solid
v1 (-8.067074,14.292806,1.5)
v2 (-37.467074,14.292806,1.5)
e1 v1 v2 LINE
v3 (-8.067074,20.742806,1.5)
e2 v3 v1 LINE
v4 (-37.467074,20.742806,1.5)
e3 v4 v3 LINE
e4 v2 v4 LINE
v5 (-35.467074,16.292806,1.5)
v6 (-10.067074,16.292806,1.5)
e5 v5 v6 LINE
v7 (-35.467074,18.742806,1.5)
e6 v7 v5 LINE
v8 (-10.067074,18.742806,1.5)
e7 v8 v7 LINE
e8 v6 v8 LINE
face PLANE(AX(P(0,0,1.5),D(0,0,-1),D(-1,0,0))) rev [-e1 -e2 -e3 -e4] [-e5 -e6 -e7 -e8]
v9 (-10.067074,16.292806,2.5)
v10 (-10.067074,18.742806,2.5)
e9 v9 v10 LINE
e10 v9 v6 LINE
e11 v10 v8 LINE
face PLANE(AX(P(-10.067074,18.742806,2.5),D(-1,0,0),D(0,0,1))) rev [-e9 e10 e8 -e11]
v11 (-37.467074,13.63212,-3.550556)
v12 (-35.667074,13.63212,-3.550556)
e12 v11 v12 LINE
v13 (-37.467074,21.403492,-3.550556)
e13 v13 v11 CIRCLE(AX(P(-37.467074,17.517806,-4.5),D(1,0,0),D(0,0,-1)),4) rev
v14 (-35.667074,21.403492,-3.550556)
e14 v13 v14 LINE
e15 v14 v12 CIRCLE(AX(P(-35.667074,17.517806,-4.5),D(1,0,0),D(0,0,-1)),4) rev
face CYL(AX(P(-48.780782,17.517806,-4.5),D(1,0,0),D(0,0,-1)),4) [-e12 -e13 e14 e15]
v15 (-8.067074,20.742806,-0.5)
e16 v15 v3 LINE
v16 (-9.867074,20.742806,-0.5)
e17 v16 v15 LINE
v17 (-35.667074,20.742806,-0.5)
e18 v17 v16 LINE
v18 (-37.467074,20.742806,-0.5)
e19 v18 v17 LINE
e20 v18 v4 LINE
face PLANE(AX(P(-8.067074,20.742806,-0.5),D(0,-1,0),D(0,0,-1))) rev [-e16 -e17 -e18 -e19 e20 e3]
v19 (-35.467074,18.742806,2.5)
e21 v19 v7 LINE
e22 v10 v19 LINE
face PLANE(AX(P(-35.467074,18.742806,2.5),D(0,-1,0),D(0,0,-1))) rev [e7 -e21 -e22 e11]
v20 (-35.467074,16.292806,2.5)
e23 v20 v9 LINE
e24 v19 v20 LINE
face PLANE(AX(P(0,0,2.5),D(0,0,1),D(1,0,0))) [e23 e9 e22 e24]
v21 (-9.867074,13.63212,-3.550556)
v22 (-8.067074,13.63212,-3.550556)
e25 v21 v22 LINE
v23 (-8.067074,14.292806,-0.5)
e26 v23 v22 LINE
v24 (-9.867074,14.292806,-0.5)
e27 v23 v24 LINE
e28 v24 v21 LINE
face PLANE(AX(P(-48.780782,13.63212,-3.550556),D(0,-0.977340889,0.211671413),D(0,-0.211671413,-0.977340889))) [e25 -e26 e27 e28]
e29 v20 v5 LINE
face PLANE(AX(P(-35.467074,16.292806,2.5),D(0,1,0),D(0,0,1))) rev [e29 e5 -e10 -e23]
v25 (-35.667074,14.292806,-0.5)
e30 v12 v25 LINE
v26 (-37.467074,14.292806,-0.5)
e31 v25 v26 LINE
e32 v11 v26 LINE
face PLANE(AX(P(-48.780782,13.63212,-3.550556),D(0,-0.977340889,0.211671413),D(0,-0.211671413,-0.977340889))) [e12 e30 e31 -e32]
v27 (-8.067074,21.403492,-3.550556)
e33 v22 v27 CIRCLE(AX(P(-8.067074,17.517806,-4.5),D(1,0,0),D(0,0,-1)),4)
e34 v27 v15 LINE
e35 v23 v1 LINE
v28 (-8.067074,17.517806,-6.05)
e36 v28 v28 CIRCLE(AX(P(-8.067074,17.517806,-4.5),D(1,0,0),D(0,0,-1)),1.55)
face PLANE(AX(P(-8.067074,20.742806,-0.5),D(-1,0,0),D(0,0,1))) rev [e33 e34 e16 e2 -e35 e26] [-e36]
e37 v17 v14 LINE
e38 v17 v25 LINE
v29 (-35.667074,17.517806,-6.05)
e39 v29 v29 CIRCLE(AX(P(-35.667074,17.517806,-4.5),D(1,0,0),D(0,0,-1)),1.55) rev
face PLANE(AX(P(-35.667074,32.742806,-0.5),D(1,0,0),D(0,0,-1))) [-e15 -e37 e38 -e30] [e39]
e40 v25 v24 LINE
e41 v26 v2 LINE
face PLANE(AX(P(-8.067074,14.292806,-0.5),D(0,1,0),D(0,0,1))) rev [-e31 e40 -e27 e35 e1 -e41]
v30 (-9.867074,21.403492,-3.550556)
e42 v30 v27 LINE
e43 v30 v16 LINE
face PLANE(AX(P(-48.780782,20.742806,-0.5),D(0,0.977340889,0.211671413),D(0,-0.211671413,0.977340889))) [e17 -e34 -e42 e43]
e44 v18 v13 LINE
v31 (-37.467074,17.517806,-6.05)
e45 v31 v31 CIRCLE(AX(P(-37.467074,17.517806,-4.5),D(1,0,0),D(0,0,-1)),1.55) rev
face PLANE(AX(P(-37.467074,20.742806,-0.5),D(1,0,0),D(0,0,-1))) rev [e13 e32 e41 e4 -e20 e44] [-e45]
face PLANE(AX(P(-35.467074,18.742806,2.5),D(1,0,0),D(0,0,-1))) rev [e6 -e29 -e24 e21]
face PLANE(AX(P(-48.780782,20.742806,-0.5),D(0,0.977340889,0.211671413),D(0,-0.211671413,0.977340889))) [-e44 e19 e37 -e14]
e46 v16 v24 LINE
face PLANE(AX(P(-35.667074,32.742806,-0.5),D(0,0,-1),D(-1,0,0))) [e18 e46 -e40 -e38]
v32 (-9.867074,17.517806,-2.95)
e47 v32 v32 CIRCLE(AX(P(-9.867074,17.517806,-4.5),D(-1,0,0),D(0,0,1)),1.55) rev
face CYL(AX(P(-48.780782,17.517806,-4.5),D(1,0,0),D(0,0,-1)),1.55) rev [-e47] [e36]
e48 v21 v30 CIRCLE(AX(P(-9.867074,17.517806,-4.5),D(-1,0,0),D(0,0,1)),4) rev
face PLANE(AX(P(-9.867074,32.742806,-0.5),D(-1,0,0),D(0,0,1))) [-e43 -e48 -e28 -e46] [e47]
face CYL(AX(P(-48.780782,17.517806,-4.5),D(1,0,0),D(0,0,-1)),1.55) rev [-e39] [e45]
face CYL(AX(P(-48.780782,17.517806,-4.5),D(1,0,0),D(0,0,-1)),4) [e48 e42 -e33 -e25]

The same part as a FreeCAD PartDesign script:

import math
import FreeCAD as App
import Part
import Sketcher
from FreeCAD import Vector
Q = App.Units.Quantity

doc = App.newDocument("Part")
body = doc.addObject("PartDesign::Body", "Body")

# Sketch on XY plane
sketch1 = body.newObject("Sketcher::SketchObject", "Sketch")
sketch1.AttachmentSupport = (doc.getObject("XY_Plane"), [""])
sketch1.MapMode = "FlatFace"
sketch1.addGeometry(Part.LineSegment(Vector(-36, 19, 0), Vector(-36, 16, 0)), False)
sketch1.addGeometry(Part.LineSegment(Vector(-36, 16, 0), Vector(-9.6, 16, 0)), False)
sketch1.addGeometry(Part.LineSegment(Vector(-9.6, 16, 0), Vector(-9.6, 19, 0)), False)
sketch1.addGeometry(Part.LineSegment(Vector(-9.6, 19, 0), Vector(-36, 19, 0)), False)
sketch1.addConstraint(Sketcher.Constraint("Coincident", 0, 2, 1, 1))
sketch1.addConstraint(Sketcher.Constraint("Coincident", 1, 2, 2, 1))
sketch1.addConstraint(Sketcher.Constraint("Coincident", 2, 2, 3, 1))
sketch1.addConstraint(Sketcher.Constraint("Coincident", 3, 2, 0, 1))
sketch1.addConstraint(Sketcher.Constraint("Vertical", 0))
sketch1.addConstraint(Sketcher.Constraint("Horizontal", 1))
sketch1.addConstraint(Sketcher.Constraint("Vertical", 2))
sketch1.addConstraint(Sketcher.Constraint("Horizontal", 3))
sketch1.addConstraint(Sketcher.Constraint("DistanceX", 1, 1, 1, 2, Q("26.4 mm")))
sketch1.addConstraint(Sketcher.Constraint("DistanceY", 0, 2, 0, 1, Q("2.95 mm")))
sketch1.addConstraint(Sketcher.Constraint("DistanceX", 0, 2, -1, 1, Q("35.967074 mm")))
sketch1.addConstraint(Sketcher.Constraint("DistanceY", -1, 1, 0, 2, Q("16.042806 mm")))
pad1 = body.newObject("PartDesign::Pad", "Pad")
pad1.Profile = sketch1
pad1.Length = 1.5

# Sketch on YZ plane
sketch2 = body.newObject("Sketcher::SketchObject", "Sketch001")
sketch2.AttachmentSupport = (doc.getObject("YZ_Plane"), [""])
sketch2.MapMode = "FlatFace"
sketch2.AttachmentOffset = App.Placement(Vector(0, 0, -9.567074), App.Rotation())
sketch2.addGeometry(Part.ArcOfCircle(Part.Circle(Vector(17.5, -3, 0), Vector(0, 0, 1), 3), math.radians(119), math.radians(421)), False)
sketch2.addGeometry(Part.LineSegment(Vector(19, -0.4, 0), Vector(19, 0.5, 0)), False)
sketch2.addGeometry(Part.LineSegment(Vector(19, 0.5, 0), Vector(16, 0.5, 0)), False)
sketch2.addGeometry(Part.LineSegment(Vector(16, 0.5, 0), Vector(16, -0.4, 0)), False)
sketch2.addConstraint(Sketcher.Constraint("Coincident", 0, 2, 1, 1))
sketch2.addConstraint(Sketcher.Constraint("Coincident", 1, 2, 2, 1))
sketch2.addConstraint(Sketcher.Constraint("Coincident", 2, 2, 3, 1))
sketch2.addConstraint(Sketcher.Constraint("Coincident", 3, 2, 0, 1))
sketch2.addConstraint(Sketcher.Constraint("Vertical", 1))
sketch2.addConstraint(Sketcher.Constraint("Horizontal", 2))
sketch2.addConstraint(Sketcher.Constraint("Vertical", 3))
sketch2.addConstraint(Sketcher.Constraint("Horizontal", 0, 2, 3, 2))
sketch2.addConstraint(Sketcher.Constraint("Radius", 0, Q("3 mm")))
sketch2.addConstraint(Sketcher.Constraint("DistanceY", 0, 3, -1, 1, Q("3 mm")))
sketch2.addConstraint(Sketcher.Constraint("DistanceX", 2, 2, 2, 1, Q("2.95 mm")))
sketch2.addConstraint(Sketcher.Constraint("DistanceY", -1, 1, 1, 2, Q("0.5 mm")))
sketch2.addConstraint(Sketcher.Constraint("DistanceX", -1, 1, 0, 3, Q("17.517806 mm")))
pad2 = body.newObject("PartDesign::Pad", "Pad001")
pad2.Profile = sketch2
pad2.Length = 1

# Sketch on YZ plane
sketch3 = body.newObject("Sketcher::SketchObject", "Sketch002")
sketch3.AttachmentSupport = (doc.getObject("YZ_Plane"), [""])
sketch3.MapMode = "FlatFace"
sketch3.AttachmentOffset = App.Placement(Vector(0, 0, -36.967074), App.Rotation())
sketch3.addGeometry(Part.LineSegment(Vector(19, 0.5, 0), Vector(19, -0.4, 0)), False)
sketch3.addGeometry(Part.ArcOfCircle(Part.Circle(Vector(17.5, -3, 0), Vector(0, 0, 1), 3), math.radians(119), math.radians(421)), False)
sketch3.addGeometry(Part.LineSegment(Vector(16, -0.4, 0), Vector(16, 0.5, 0)), False)
sketch3.addGeometry(Part.LineSegment(Vector(16, 0.5, 0), Vector(19, 0.5, 0)), False)
sketch3.addConstraint(Sketcher.Constraint("Coincident", 0, 2, 1, 2))
sketch3.addConstraint(Sketcher.Constraint("Coincident", 1, 1, 2, 1))
sketch3.addConstraint(Sketcher.Constraint("Coincident", 2, 2, 3, 1))
sketch3.addConstraint(Sketcher.Constraint("Coincident", 3, 2, 0, 1))
sketch3.addConstraint(Sketcher.Constraint("Vertical", 0))
sketch3.addConstraint(Sketcher.Constraint("Vertical", 2))
sketch3.addConstraint(Sketcher.Constraint("Horizontal", 3))
sketch3.addConstraint(Sketcher.Constraint("Horizontal", 0, 2, 1, 1))
sketch3.addConstraint(Sketcher.Constraint("Radius", 1, Q("3 mm")))
sketch3.addConstraint(Sketcher.Constraint("DistanceY", 1, 3, -1, 1, Q("3 mm")))
sketch3.addConstraint(Sketcher.Constraint("DistanceX", 3, 1, 3, 2, Q("2.95 mm")))
sketch3.addConstraint(Sketcher.Constraint("DistanceY", -1, 1, 2, 2, Q("0.5 mm")))
sketch3.addConstraint(Sketcher.Constraint("DistanceX", -1, 1, 1, 3, Q("17.517806 mm")))
pad3 = body.newObject("PartDesign::Pad", "Pad002")
pad3.Profile = sketch3
pad3.Length = 1

# Sketch on XZ plane
sketch4 = body.newObject("Sketcher::SketchObject", "Sketch003")
sketch4.AttachmentSupport = (doc.getObject("XZ_Plane"), [""])
sketch4.MapMode = "FlatFace"
sketch4.AttachmentOffset = App.Placement(Vector(0, 0, -18.992806), App.Rotation())
sketch4.addGeometry(Part.LineSegment(Vector(-35.97, -0.39, 0), Vector(-35.97, 0, 0)), False)
sketch4.addGeometry(Part.LineSegment(Vector(-35.97, 0, 0), Vector(-9.57, 0, 0)), False)
sketch4.addGeometry(Part.LineSegment(Vector(-9.57, 0, 0), Vector(-9.57, -0.39, 0)), False)
sketch4.addGeometry(Part.LineSegment(Vector(-9.57, -0.39, 0), Vector(-35.97, -0.39, 0)), False)
sketch4.addConstraint(Sketcher.Constraint("Coincident", 0, 2, 1, 1))
sketch4.addConstraint(Sketcher.Constraint("Coincident", 1, 2, 2, 1))
sketch4.addConstraint(Sketcher.Constraint("Coincident", 2, 2, 3, 1))
sketch4.addConstraint(Sketcher.Constraint("Coincident", 3, 2, 0, 1))
sketch4.addConstraint(Sketcher.Constraint("Vertical", 0))
sketch4.addConstraint(Sketcher.Constraint("Horizontal", 1))
sketch4.addConstraint(Sketcher.Constraint("Vertical", 2))
sketch4.addConstraint(Sketcher.Constraint("Horizontal", 3))
sketch4.addConstraint(Sketcher.Constraint("PointOnObject", 0, 2, -1))
sketch4.addConstraint(Sketcher.Constraint("DistanceX", 1, 1, 1, 2, Q("26.4 mm")))
sketch4.addConstraint(Sketcher.Constraint("DistanceY", 0, 1, 0, 2, Q("0.38765 mm")))
sketch4.addConstraint(Sketcher.Constraint("DistanceX", 0, 2, -1, 1, Q("35.967074 mm")))
pad4 = body.newObject("PartDesign::Pad", "Pad003")
pad4.Profile = sketch4
pad4.Length = 2.95

# Sketch on YZ plane
sketch5 = body.newObject("Sketcher::SketchObject", "Sketch004")
sketch5.AttachmentSupport = (doc.getObject("YZ_Plane"), [""])
sketch5.MapMode = "FlatFace"
sketch5.AttachmentOffset = App.Placement(Vector(0, 0, -8.567074), App.Rotation())
sketch5.addGeometry(Part.Circle(Vector(17.5, -3, 0), Vector(0, 0, 1), 1.5), False)
sketch5.addConstraint(Sketcher.Constraint("Diameter", 0, Q("3 mm")))
sketch5.addConstraint(Sketcher.Constraint("DistanceY", 0, 3, -1, 1, Q("3 mm")))
sketch5.addConstraint(Sketcher.Constraint("DistanceX", -1, 1, 0, 3, Q("17.517806 mm")))
pocket1 = body.newObject("PartDesign::Pocket", "Pocket")
pocket1.Profile = sketch5
pocket1.Length = 51

# Sketch on YZ plane
sketch6 = body.newObject("Sketcher::SketchObject", "Sketch005")
sketch6.AttachmentSupport = (doc.getObject("YZ_Plane"), [""])
sketch6.MapMode = "FlatFace"
sketch6.AttachmentOffset = App.Placement(Vector(0, 0, -35.967074), App.Rotation())
sketch6.addGeometry(Part.Circle(Vector(17.5, -3, 0), Vector(0, 0, 1), 3), False)
sketch6.addConstraint(Sketcher.Constraint("Diameter", 0, Q("6 mm")))
sketch6.addConstraint(Sketcher.Constraint("DistanceY", 0, 3, -1, 1, Q("3 mm")))
sketch6.addConstraint(Sketcher.Constraint("DistanceX", -1, 1, 0, 3, Q("17.517806 mm")))
pocket2 = body.newObject("PartDesign::Pocket", "Pocket001")
pocket2.Profile = sketch6
pocket2.Length = 26.4
pocket2.Reversed = True

# Sketch on XZ plane
sketch7 = body.newObject("Sketcher::SketchObject", "Sketch006")
sketch7.AttachmentSupport = (doc.getObject("XZ_Plane"), [""])
sketch7.MapMode = "FlatFace"
sketch7.addGeometry(Part.LineSegment(Vector(-37.3, 0.5, 0), Vector(-37.3, 1.5, 0)), False)
sketch7.addGeometry(Part.LineSegment(Vector(-37.3, 1.5, 0), Vector(-36.8, 1.5, 0)), False)
sketch7.addGeometry(Part.LineSegment(Vector(-36.8, 1.5, 0), Vector(-36.8, 0.5, 0)), False)
sketch7.addGeometry(Part.LineSegment(Vector(-36.8, 0.5, 0), Vector(-37.3, 0.5, 0)), False)
sketch7.addGeometry(Part.LineSegment(Vector(-8.8, 0.5, 0), Vector(-8.8, 1.5, 0)), False)
sketch7.addGeometry(Part.LineSegment(Vector(-8.8, 1.5, 0), Vector(-8.3, 1.5, 0)), False)
sketch7.addGeometry(Part.LineSegment(Vector(-8.3, 1.5, 0), Vector(-8.3, 0.5, 0)), False)
sketch7.addGeometry(Part.LineSegment(Vector(-8.3, 0.5, 0), Vector(-8.8, 0.5, 0)), False)
sketch7.addConstraint(Sketcher.Constraint("Coincident", 0, 2, 1, 1))
sketch7.addConstraint(Sketcher.Constraint("Coincident", 1, 2, 2, 1))
sketch7.addConstraint(Sketcher.Constraint("Coincident", 2, 2, 3, 1))
sketch7.addConstraint(Sketcher.Constraint("Coincident", 3, 2, 0, 1))
sketch7.addConstraint(Sketcher.Constraint("Coincident", 4, 2, 5, 1))
sketch7.addConstraint(Sketcher.Constraint("Coincident", 5, 2, 6, 1))
sketch7.addConstraint(Sketcher.Constraint("Coincident", 6, 2, 7, 1))
sketch7.addConstraint(Sketcher.Constraint("Coincident", 7, 2, 4, 1))
sketch7.addConstraint(Sketcher.Constraint("Vertical", 0))
sketch7.addConstraint(Sketcher.Constraint("Horizontal", 1))
sketch7.addConstraint(Sketcher.Constraint("Vertical", 2))
sketch7.addConstraint(Sketcher.Constraint("Horizontal", 3))
sketch7.addConstraint(Sketcher.Constraint("Vertical", 4))
sketch7.addConstraint(Sketcher.Constraint("Horizontal", 5))
sketch7.addConstraint(Sketcher.Constraint("Vertical", 6))
sketch7.addConstraint(Sketcher.Constraint("Horizontal", 7))
sketch7.addConstraint(Sketcher.Constraint("Horizontal", 1, 2, 4, 2))
sketch7.addConstraint(Sketcher.Constraint("Horizontal", 3, 2, 6, 2))
sketch7.addConstraint(Sketcher.Constraint("Equal", 3, 5))
sketch7.addConstraint(Sketcher.Constraint("DistanceY", 0, 1, 0, 2, Q("1 mm")))
sketch7.addConstraint(Sketcher.Constraint("DistanceX", 1, 1, 1, 2, Q("0.5 mm")))
sketch7.addConstraint(Sketcher.Constraint("DistanceY", -1, 1, 0, 2, Q("1.5 mm")))
sketch7.addConstraint(Sketcher.Constraint("DistanceX", 4, 2, -1, 1, Q("8.768741 mm")))
sketch7.addConstraint(Sketcher.Constraint("DistanceX", 0, 2, -1, 1, Q("37.267074 mm")))
pad5 = body.newObject("PartDesign::Pad", "Pad004")
pad5.Profile = sketch7
pad5.Length = 20
pad5.Reversed = True

# Sketch on YZ plane
sketch8 = body.newObject("Sketcher::SketchObject", "Sketch007")
sketch8.AttachmentSupport = (doc.getObject("YZ_Plane"), [""])
sketch8.MapMode = "FlatFace"
sketch8.AttachmentOffset = App.Placement(Vector(0, 0, -37.267074), App.Rotation())
sketch8.addGeometry(Part.LineSegment(Vector(20, 0.5, 0), Vector(19, 0.5, 0)), False)
sketch8.addGeometry(Part.LineSegment(Vector(19, 0.5, 0), Vector(19, 1.5, 0)), False)
sketch8.addGeometry(Part.LineSegment(Vector(19, 1.5, 0), Vector(20, 1.5, 0)), False)
sketch8.addGeometry(Part.LineSegment(Vector(20, 1.5, 0), Vector(20, 0.5, 0)), False)
sketch8.addGeometry(Part.LineSegment(Vector(16, 0.5, 0), Vector(0, 0.5, 0)), False)
sketch8.addGeometry(Part.LineSegment(Vector(0, 0.5, 0), Vector(0, 1.5, 0)), False)
sketch8.addGeometry(Part.LineSegment(Vector(0, 1.5, 0), Vector(16, 1.5, 0)), False)
sketch8.addGeometry(Part.LineSegment(Vector(16, 1.5, 0), Vector(16, 0.5, 0)), False)
sketch8.addConstraint(Sketcher.Constraint("Coincident", 0, 2, 1, 1))
sketch8.addConstraint(Sketcher.Constraint("Coincident", 1, 2, 2, 1))
sketch8.addConstraint(Sketcher.Constraint("Coincident", 2, 2, 3, 1))
sketch8.addConstraint(Sketcher.Constraint("Coincident", 3, 2, 0, 1))
sketch8.addConstraint(Sketcher.Constraint("Coincident", 4, 2, 5, 1))
sketch8.addConstraint(Sketcher.Constraint("Coincident", 5, 2, 6, 1))
sketch8.addConstraint(Sketcher.Constraint("Coincident", 6, 2, 7, 1))
sketch8.addConstraint(Sketcher.Constraint("Coincident", 7, 2, 4, 1))
sketch8.addConstraint(Sketcher.Constraint("Horizontal", 0))
sketch8.addConstraint(Sketcher.Constraint("Vertical", 1))
sketch8.addConstraint(Sketcher.Constraint("Horizontal", 2))
sketch8.addConstraint(Sketcher.Constraint("Vertical", 3))
sketch8.addConstraint(Sketcher.Constraint("Horizontal", 4))
sketch8.addConstraint(Sketcher.Constraint("Vertical", 5))
sketch8.addConstraint(Sketcher.Constraint("Horizontal", 6))
sketch8.addConstraint(Sketcher.Constraint("Vertical", 7))
sketch8.addConstraint(Sketcher.Constraint("PointOnObject", 4, 2, -2))
sketch8.addConstraint(Sketcher.Constraint("Horizontal", 3, 2, 4, 2))
sketch8.addConstraint(Sketcher.Constraint("Horizontal", 2, 2, 5, 2))
sketch8.addConstraint(Sketcher.Constraint("DistanceY", 1, 1, 1, 2, Q("1 mm")))
sketch8.addConstraint(Sketcher.Constraint("DistanceX", -1, 1, 2, 2, Q("20 mm")))
sketch8.addConstraint(Sketcher.Constraint("DistanceY", -1, 1, 0, 2, Q("0.5 mm")))
sketch8.addConstraint(Sketcher.Constraint("DistanceX", 6, 2, 1, 2, Q("2.95 mm")))
sketch8.addConstraint(Sketcher.Constraint("DistanceX", 0, 2, 0, 1, Q("1.007194 mm")))
pocket3 = body.newObject("PartDesign::Pocket", "Pocket002")
pocket3.Profile = sketch8
pocket3.Length = 40
pocket3.Reversed = True

# Sketch on XY plane
sketch9 = body.newObject("Sketcher::SketchObject", "Sketch008")
sketch9.AttachmentSupport = (doc.getObject("XY_Plane"), [""])
sketch9.MapMode = "FlatFace"
sketch9.AttachmentOffset = App.Placement(Vector(0, 0, 1.5), App.Rotation())
sketch9.addGeometry(Part.LineSegment(Vector(-35.5, 18.7, 0), Vector(-35.5, 16.3, 0)), False)
sketch9.addGeometry(Part.LineSegment(Vector(-35.5, 16.3, 0), Vector(-10.1, 16.3, 0)), False)
sketch9.addGeometry(Part.LineSegment(Vector(-10.1, 16.3, 0), Vector(-10.1, 18.7, 0)), False)
sketch9.addGeometry(Part.LineSegment(Vector(-10.1, 18.7, 0), Vector(-35.5, 18.7, 0)), False)
sketch9.addConstraint(Sketcher.Constraint("Coincident", 0, 2, 1, 1))
sketch9.addConstraint(Sketcher.Constraint("Coincident", 1, 2, 2, 1))
sketch9.addConstraint(Sketcher.Constraint("Coincident", 2, 2, 3, 1))
sketch9.addConstraint(Sketcher.Constraint("Coincident", 3, 2, 0, 1))
sketch9.addConstraint(Sketcher.Constraint("Vertical", 0))
sketch9.addConstraint(Sketcher.Constraint("Horizontal", 1))
sketch9.addConstraint(Sketcher.Constraint("Vertical", 2))
sketch9.addConstraint(Sketcher.Constraint("Horizontal", 3))
sketch9.addConstraint(Sketcher.Constraint("DistanceX", 1, 1, 1, 2, Q("25.4 mm")))
sketch9.addConstraint(Sketcher.Constraint("DistanceY", 0, 2, 0, 1, Q("2.45 mm")))
sketch9.addConstraint(Sketcher.Constraint("DistanceX", 0, 2, -1, 1, Q("35.467074 mm")))
sketch9.addConstraint(Sketcher.Constraint("DistanceY", -1, 1, 0, 2, Q("16.292806 mm")))
pad6 = body.newObject("PartDesign::Pad", "Pad005")
pad6.Profile = sketch9
pad6.Length = 1

# Sketch on XZ plane
sketch10 = body.newObject("Sketcher::SketchObject", "Sketch009")
sketch10.AttachmentSupport = (doc.getObject("XZ_Plane"), [""])
sketch10.MapMode = "FlatFace"
sketch10.AttachmentOffset = App.Placement(Vector(0, 0, -18.992806), App.Rotation())
sketch10.addGeometry(Part.LineSegment(Vector(-40.5, 0.5, 0), Vector(-40.5, 2.1, 0)), False)
sketch10.addGeometry(Part.LineSegment(Vector(-40.5, 2.1, 0), Vector(-36, 2.1, 0)), False)
sketch10.addGeometry(Part.LineSegment(Vector(-36, 2.1, 0), Vector(-36, 0.5, 0)), False)
sketch10.addGeometry(Part.LineSegment(Vector(-36, 0.5, 0), Vector(-40.5, 0.5, 0)), False)
sketch10.addGeometry(Part.LineSegment(Vector(-9.6, 0.5, 0), Vector(-9.6, 2.7, 0)), False)
sketch10.addGeometry(Part.LineSegment(Vector(-9.6, 2.7, 0), Vector(-6.2, 2.7, 0)), False)
sketch10.addGeometry(Part.LineSegment(Vector(-6.2, 2.7, 0), Vector(-6.2, 0.5, 0)), False)
sketch10.addGeometry(Part.LineSegment(Vector(-6.2, 0.5, 0), Vector(-9.6, 0.5, 0)), False)
sketch10.addConstraint(Sketcher.Constraint("Coincident", 0, 2, 1, 1))
sketch10.addConstraint(Sketcher.Constraint("Coincident", 1, 2, 2, 1))
sketch10.addConstraint(Sketcher.Constraint("Coincident", 2, 2, 3, 1))
sketch10.addConstraint(Sketcher.Constraint("Coincident", 3, 2, 0, 1))
sketch10.addConstraint(Sketcher.Constraint("Coincident", 4, 2, 5, 1))
sketch10.addConstraint(Sketcher.Constraint("Coincident", 5, 2, 6, 1))
sketch10.addConstraint(Sketcher.Constraint("Coincident", 6, 2, 7, 1))
sketch10.addConstraint(Sketcher.Constraint("Coincident", 7, 2, 4, 1))
sketch10.addConstraint(Sketcher.Constraint("Vertical", 0))
sketch10.addConstraint(Sketcher.Constraint("Horizontal", 1))
sketch10.addConstraint(Sketcher.Constraint("Vertical", 2))
sketch10.addConstraint(Sketcher.Constraint("Horizontal", 3))
sketch10.addConstraint(Sketcher.Constraint("Vertical", 4))
sketch10.addConstraint(Sketcher.Constraint("Horizontal", 5))
sketch10.addConstraint(Sketcher.Constraint("Vertical", 6))
sketch10.addConstraint(Sketcher.Constraint("Horizontal", 7))
sketch10.addConstraint(Sketcher.Constraint("Horizontal", 3, 2, 6, 2))
sketch10.addConstraint(Sketcher.Constraint("DistanceY", -1, 1, 2, 2, Q("0.5 mm")))
sketch10.addConstraint(Sketcher.Constraint("DistanceX", 1, 2, 4, 2, Q("26.4 mm")))
sketch10.addConstraint(Sketcher.Constraint("DistanceX", 1, 1, 1, 2, Q("4.52716 mm")))
sketch10.addConstraint(Sketcher.Constraint("DistanceX", 5, 1, 5, 2, Q("3.325741 mm")))
sketch10.addConstraint(Sketcher.Constraint("DistanceY", 4, 1, 4, 2, Q("2.18908 mm")))
sketch10.addConstraint(Sketcher.Constraint("DistanceY", 0, 1, 0, 2, Q("1.589204 mm")))
sketch10.addConstraint(Sketcher.Constraint("DistanceX", 0, 2, -1, 1, Q("40.494233 mm")))
pocket4 = body.newObject("PartDesign::Pocket", "Pocket003")
pocket4.Profile = sketch10
pocket4.Length = 21
pocket4.Reversed = True

# Sketch on XZ plane
sketch11 = body.newObject("Sketcher::SketchObject", "Sketch010")
sketch11.AttachmentSupport = (doc.getObject("XZ_Plane"), [""])
sketch11.MapMode = "FlatFace"
sketch11.AttachmentOffset = App.Placement(Vector(0, 0, -18.992806), App.Rotation())
sketch11.addGeometry(Part.LineSegment(Vector(-42, -8, 0), Vector(-42, 2, 0)), False)
sketch11.addGeometry(Part.LineSegment(Vector(-42, 2, 0), Vector(-8, 2, 0)), False)
sketch11.addGeometry(Part.LineSegment(Vector(-8, 2, 0), Vector(-8, -8, 0)), False)
sketch11.addGeometry(Part.LineSegment(Vector(-8, -8, 0), Vector(-42, -8, 0)), False)
sketch11.addConstraint(Sketcher.Constraint("Coincident", 0, 2, 1, 1))
sketch11.addConstraint(Sketcher.Constraint("Coincident", 1, 2, 2, 1))
sketch11.addConstraint(Sketcher.Constraint("Coincident", 2, 2, 3, 1))
sketch11.addConstraint(Sketcher.Constraint("Coincident", 3, 2, 0, 1))
sketch11.addConstraint(Sketcher.Constraint("Vertical", 0))
sketch11.addConstraint(Sketcher.Constraint("Horizontal", 1))
sketch11.addConstraint(Sketcher.Constraint("Vertical", 2))
sketch11.addConstraint(Sketcher.Constraint("Horizontal", 3))
sketch11.addConstraint(Sketcher.Constraint("DistanceY", -1, 1, 0, 2, Q("1.5 mm")))
sketch11.addConstraint(Sketcher.Constraint("DistanceX", 1, 1, 1, 2, Q("34.398489 mm")))
sketch11.addConstraint(Sketcher.Constraint("DistanceY", 0, 1, 0, 2, Q("9.421589 mm")))
sketch11.addConstraint(Sketcher.Constraint("DistanceX", 0, 2, -1, 1, Q("41.914344 mm")))
pocket5 = body.newObject("PartDesign::Pocket", "Pocket004")
pocket5.Profile = sketch11
pocket5.Type = "ThroughAll"
pocket5.Midplane = True

# Sketch on XY plane
sketch12 = body.newObject("Sketcher::SketchObject", "Sketch011")
sketch12.AttachmentSupport = (doc.getObject("XY_Plane"), [""])
sketch12.MapMode = "FlatFace"
sketch12.AttachmentOffset = App.Placement(Vector(0, 0, 1.5), App.Rotation())
sketch12.addGeometry(Part.LineSegment(Vector(-8, 21, 0), Vector(-8, 14, 0)), False)
sketch12.addGeometry(Part.LineSegment(Vector(-8, 14, 0), Vector(-37, 14, 0)), False)
sketch12.addGeometry(Part.LineSegment(Vector(-37, 14, 0), Vector(-37, 21, 0)), False)
sketch12.addGeometry(Part.LineSegment(Vector(-37, 21, 0), Vector(-8, 21, 0)), False)
sketch12.addConstraint(Sketcher.Constraint("Coincident", 0, 2, 1, 1))
sketch12.addConstraint(Sketcher.Constraint("Coincident", 1, 2, 2, 1))
sketch12.addConstraint(Sketcher.Constraint("Coincident", 2, 2, 3, 1))
sketch12.addConstraint(Sketcher.Constraint("Coincident", 3, 2, 0, 1))
sketch12.addConstraint(Sketcher.Constraint("Vertical", 0))
sketch12.addConstraint(Sketcher.Constraint("Horizontal", 1))
sketch12.addConstraint(Sketcher.Constraint("Vertical", 2))
sketch12.addConstraint(Sketcher.Constraint("Horizontal", 3))
sketch12.addConstraint(Sketcher.Constraint("DistanceX", 1, 2, 1, 1, Q("29.4 mm")))
sketch12.addConstraint(Sketcher.Constraint("DistanceY", 0, 2, 0, 1, Q("6.45 mm")))
sketch12.addConstraint(Sketcher.Constraint("DistanceX", 0, 2, -1, 1, Q("8.067074 mm")))
sketch12.addConstraint(Sketcher.Constraint("DistanceY", -1, 1, 0, 2, Q("14.292806 mm")))
pad7 = body.newObject("PartDesign::Pad", "Pad006")
pad7.Profile = sketch12
pad7.Length = 2
pad7.Reversed = True

# Sketch on YZ plane
sketch13 = body.newObject("Sketcher::SketchObject", "Sketch012")
sketch13.AttachmentSupport = (doc.getObject("YZ_Plane"), [""])
sketch13.MapMode = "FlatFace"
sketch13.AttachmentOffset = App.Placement(Vector(0, 0, -8.067074), App.Rotation())
sketch13.addGeometry(Part.LineSegment(Vector(21.4, -3.6, 0), Vector(20.7, -0.5, 0)), False)
sketch13.addGeometry(Part.LineSegment(Vector(20.7, -0.5, 0), Vector(14.3, -0.5, 0)), False)
sketch13.addGeometry(Part.LineSegment(Vector(14.3, -0.5, 0), Vector(13.6, -3.6, 0)), False)
sketch13.addGeometry(Part.ArcOfCircle(Part.Circle(Vector(17.5, -4.5, 0), Vector(0, 0, 1), 4), math.radians(166), math.radians(374)), False)
sketch13.addGeometry(Part.Circle(Vector(17.5, -4.5, 0), Vector(0, 0, 1), 1.6), False)
sketch13.addConstraint(Sketcher.Constraint("Coincident", 0, 2, 1, 1))
sketch13.addConstraint(Sketcher.Constraint("Coincident", 1, 2, 2, 1))
sketch13.addConstraint(Sketcher.Constraint("Coincident", 2, 2, 3, 1))
sketch13.addConstraint(Sketcher.Constraint("Coincident", 3, 2, 0, 1))
sketch13.addConstraint(Sketcher.Constraint("Horizontal", 1))
sketch13.addConstraint(Sketcher.Constraint("Coincident", 4, 3, 3, 3))
sketch13.addConstraint(Sketcher.Constraint("Horizontal", 2, 2, 3, 2))
sketch13.addConstraint(Sketcher.Constraint("Equal", 0, 2))
sketch13.addConstraint(Sketcher.Constraint("Radius", 3, Q("4 mm")))
sketch13.addConstraint(Sketcher.Constraint("Diameter", 4, Q("3.1 mm")))
sketch13.addConstraint(Sketcher.Constraint("DistanceY", 3, 3, 0, 2, Q("4 mm")))
sketch13.addConstraint(Sketcher.Constraint("DistanceX", 1, 2, 1, 1, Q("6.45 mm")))
sketch13.addConstraint(Sketcher.Constraint("DistanceY", 3, 3, -1, 1, Q("4.5 mm")))
sketch13.addConstraint(Sketcher.Constraint("Distance", 0, Q("3.121282 mm")))
sketch13.addConstraint(Sketcher.Constraint("DistanceX", -1, 1, 2, 2, Q("13.63212 mm")))
pad8 = body.newObject("PartDesign::Pad", "Pad007")
pad8.Profile = sketch13
pad8.Length = 29.4
pad8.Reversed = True

# Sketch on XZ plane
sketch14 = body.newObject("Sketcher::SketchObject", "Sketch013")
sketch14.AttachmentSupport = (doc.getObject("XZ_Plane"), [""])
sketch14.MapMode = "FlatFace"
sketch14.AttachmentOffset = App.Placement(Vector(0, 0, -20.742806), App.Rotation())
sketch14.addGeometry(Part.LineSegment(Vector(-36, -11, 0), Vector(-36, 0, 0)), False)
sketch14.addGeometry(Part.LineSegment(Vector(-36, 0, 0), Vector(-10, 0, 0)), False)
sketch14.addGeometry(Part.LineSegment(Vector(-10, 0, 0), Vector(-10, -11, 0)), False)
sketch14.addGeometry(Part.LineSegment(Vector(-10, -11, 0), Vector(-36, -11, 0)), False)
sketch14.addConstraint(Sketcher.Constraint("Coincident", 0, 2, 1, 1))
sketch14.addConstraint(Sketcher.Constraint("Coincident", 1, 2, 2, 1))
sketch14.addConstraint(Sketcher.Constraint("Coincident", 2, 2, 3, 1))
sketch14.addConstraint(Sketcher.Constraint("Coincident", 3, 2, 0, 1))
sketch14.addConstraint(Sketcher.Constraint("Vertical", 0))
sketch14.addConstraint(Sketcher.Constraint("Horizontal", 1))
sketch14.addConstraint(Sketcher.Constraint("Vertical", 2))
sketch14.addConstraint(Sketcher.Constraint("Horizontal", 3))
sketch14.addConstraint(Sketcher.Constraint("DistanceX", 1, 1, 1, 2, Q("25.8 mm")))
sketch14.addConstraint(Sketcher.Constraint("DistanceY", 0, 2, -1, 1, Q("0.5 mm")))
sketch14.addConstraint(Sketcher.Constraint("DistanceY", 0, 1, 0, 2, Q("10.578979 mm")))
sketch14.addConstraint(Sketcher.Constraint("DistanceX", 0, 2, -1, 1, Q("35.667074 mm")))
pocket6 = body.newObject("PartDesign::Pocket", "Pocket005")
pocket6.Profile = sketch14
pocket6.Type = "ThroughAll"
pocket6.Midplane = True

doc.recompute()
